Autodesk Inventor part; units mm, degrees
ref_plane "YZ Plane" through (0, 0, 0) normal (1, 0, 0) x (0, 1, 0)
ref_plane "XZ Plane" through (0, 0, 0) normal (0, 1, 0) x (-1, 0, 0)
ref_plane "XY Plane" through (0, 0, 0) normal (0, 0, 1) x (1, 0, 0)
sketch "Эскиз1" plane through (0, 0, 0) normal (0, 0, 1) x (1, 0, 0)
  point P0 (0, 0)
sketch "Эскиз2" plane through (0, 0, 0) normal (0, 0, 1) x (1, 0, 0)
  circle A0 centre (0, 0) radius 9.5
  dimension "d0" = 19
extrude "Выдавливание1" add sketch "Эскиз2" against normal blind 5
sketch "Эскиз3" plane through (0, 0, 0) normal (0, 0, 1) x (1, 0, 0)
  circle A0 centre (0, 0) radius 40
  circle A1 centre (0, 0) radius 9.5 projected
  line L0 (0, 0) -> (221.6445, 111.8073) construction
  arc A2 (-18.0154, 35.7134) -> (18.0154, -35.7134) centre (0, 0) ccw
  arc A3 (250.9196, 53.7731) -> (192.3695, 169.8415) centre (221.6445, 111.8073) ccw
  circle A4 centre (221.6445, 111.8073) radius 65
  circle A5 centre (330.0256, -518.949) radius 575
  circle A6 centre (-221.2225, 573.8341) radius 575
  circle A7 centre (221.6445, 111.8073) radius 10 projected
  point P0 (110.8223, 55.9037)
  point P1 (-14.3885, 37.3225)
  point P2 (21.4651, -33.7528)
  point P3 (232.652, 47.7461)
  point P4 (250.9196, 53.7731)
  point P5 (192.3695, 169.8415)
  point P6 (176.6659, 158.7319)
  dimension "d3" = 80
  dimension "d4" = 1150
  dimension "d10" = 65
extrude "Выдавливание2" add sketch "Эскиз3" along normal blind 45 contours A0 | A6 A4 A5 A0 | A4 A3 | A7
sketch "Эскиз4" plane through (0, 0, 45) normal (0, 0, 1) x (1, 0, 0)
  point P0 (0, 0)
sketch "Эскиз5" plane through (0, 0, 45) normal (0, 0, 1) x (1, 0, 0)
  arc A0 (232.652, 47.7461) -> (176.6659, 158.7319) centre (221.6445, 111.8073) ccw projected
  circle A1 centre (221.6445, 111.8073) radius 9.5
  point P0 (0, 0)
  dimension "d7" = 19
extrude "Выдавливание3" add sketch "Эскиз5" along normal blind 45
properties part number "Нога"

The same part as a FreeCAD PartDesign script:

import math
import FreeCAD as App
import Part
import Sketcher

V = App.Vector

doc = App.newDocument("Part")
body = doc.addObject("PartDesign::Body", "Body")
body.AllowCompound = True

# Sketch on XY plane
sketch1 = body.newObject("Sketcher::SketchObject", "Sketch")
sketch1.AttachmentSupport = (doc.getObject("XY_Plane"), [""])
sketch1.MapMode = "FlatFace"
sketch1.addGeometry(Part.Circle(V(0, 0, 0), V(0, 0, 1), 10), False)
sketch1.addConstraint(Sketcher.Constraint("Coincident", 0, 3, -1, 1))
sketch1.addConstraint(Sketcher.Constraint("Diameter", 0, 19.0))
pad1 = body.newObject("PartDesign::Pad", "Pad")
pad1.Profile = sketch1
pad1.Length = 5
pad1.Reversed = True

# Sketch on XY plane
sketch2 = body.newObject("Sketcher::SketchObject", "Sketch001")
sketch2.AttachmentSupport = (doc.getObject("XY_Plane"), [""])
sketch2.MapMode = "FlatFace"
sketch2.addGeometry(Part.ArcOfCircle(Part.Circle(V(0, 0, 0), V(0, 0, 1), 40), math.radians(111), math.radians(302)), False)
sketch2.addGeometry(Part.ArcOfCircle(Part.Circle(V(330, -519, 0), V(0, 0, 1), 575), math.radians(100), math.radians(122)), False)
sketch2.addGeometry(Part.ArcOfCircle(Part.Circle(V(222, 112, 0), V(0, 0, 1), 65), math.radians(-80.25), math.radians(-63.23)), False)
sketch2.addGeometry(Part.ArcOfCircle(Part.Circle(V(222, 112, 0), V(0, 0, 1), 65), math.radians(-63), math.radians(117)), False)
sketch2.addGeometry(Part.ArcOfCircle(Part.Circle(V(222, 112, 0), V(0, 0, 1), 65), math.radians(116.77), math.radians(133.79)), False)
sketch2.addGeometry(Part.ArcOfCircle(Part.Circle(V(-221, 574, 0), V(0, 0, 1), 575), math.radians(-69), math.radians(-46)), False)
sketch2.addGeometry(Part.Circle(V(0, 0, 0), V(0, 0, 1), 10), False)
sketch2.addConstraint(Sketcher.Constraint("Tangent", 0, 2, 1, 2))
sketch2.addConstraint(Sketcher.Constraint("Tangent", 1, 1, 2, 1))
sketch2.addConstraint(Sketcher.Constraint("Tangent", 2, 2, 3, 1))
sketch2.addConstraint(Sketcher.Constraint("Tangent", 3, 2, 4, 1))
sketch2.addConstraint(Sketcher.Constraint("Tangent", 4, 2, 5, 2))
sketch2.addConstraint(Sketcher.Constraint("Tangent", 5, 1, 0, 1))
sketch2.addConstraint(Sketcher.Constraint("Coincident", 0, 3, -1, 1))
sketch2.addConstraint(Sketcher.Constraint("Coincident", 6, 3, -1, 1))
sketch2.addConstraint(Sketcher.Constraint("Equal", 2, 3))
sketch2.addConstraint(Sketcher.Constraint("Equal", 3, 4))
sketch2.addConstraint(Sketcher.Constraint("Equal", 1, 5))
sketch2.addConstraint(Sketcher.Constraint("Radius", 0, 40.0))
sketch2.addConstraint(Sketcher.Constraint("Radius", 1, 575.0))
sketch2.addConstraint(Sketcher.Constraint("Radius", 2, 65.0))
sketch2.addConstraint(Sketcher.Constraint("Diameter", 6, 19.0))
sketch2.addConstraint(Sketcher.Constraint("DistanceY", 0, 2, 2, 3, 145.56))
sketch2.addConstraint(Sketcher.Constraint("DistanceY", 1, 3, -1, 1, 518.949))
sketch2.addConstraint(Sketcher.Constraint("DistanceY", -1, 1, 2, 2, 53.773))
sketch2.addConstraint(Sketcher.Constraint("DistanceX", 3, 2, 2, 3, 29.275))
pad2 = body.newObject("PartDesign::Pad", "Pad001")
pad2.Profile = sketch2
pad2.Length = 45

# Sketch on XY plane
sketch3 = body.newObject("Sketcher::SketchObject", "Sketch002")
sketch3.AttachmentSupport = (doc.getObject("XY_Plane"), [""])
sketch3.MapMode = "FlatFace"
sketch3.AttachmentOffset = App.Placement(V(0, 0, 45), App.Rotation())
sketch3.addGeometry(Part.Circle(V(222, 112, 0), V(0, 0, 1), 10), False)
sketch3.addConstraint(Sketcher.Constraint("Diameter", 0, 19.0))
sketch3.addConstraint(Sketcher.Constraint("DistanceX", -1, 1, 0, 3, 221.6445))
sketch3.addConstraint(Sketcher.Constraint("DistanceY", -1, 1, 0, 3, 111.8073))
pad3 = body.newObject("PartDesign::Pad", "Pad002")
pad3.Profile = sketch3
pad3.Length = 45

doc.recompute()
